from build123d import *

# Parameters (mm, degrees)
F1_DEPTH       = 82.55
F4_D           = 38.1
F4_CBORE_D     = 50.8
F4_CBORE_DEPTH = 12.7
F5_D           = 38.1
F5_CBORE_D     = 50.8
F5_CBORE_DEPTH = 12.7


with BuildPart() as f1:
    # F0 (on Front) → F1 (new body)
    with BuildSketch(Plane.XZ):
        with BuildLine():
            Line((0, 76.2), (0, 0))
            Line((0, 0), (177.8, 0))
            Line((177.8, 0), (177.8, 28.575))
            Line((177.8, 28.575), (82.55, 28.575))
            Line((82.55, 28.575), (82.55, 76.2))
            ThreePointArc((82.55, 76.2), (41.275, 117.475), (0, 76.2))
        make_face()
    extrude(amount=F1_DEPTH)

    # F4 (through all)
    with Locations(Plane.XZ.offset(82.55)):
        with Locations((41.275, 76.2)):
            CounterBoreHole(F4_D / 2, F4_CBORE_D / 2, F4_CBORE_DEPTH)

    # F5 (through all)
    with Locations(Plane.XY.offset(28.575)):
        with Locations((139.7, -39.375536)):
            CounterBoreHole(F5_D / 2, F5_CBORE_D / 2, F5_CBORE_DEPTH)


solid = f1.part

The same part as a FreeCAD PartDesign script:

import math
import FreeCAD as App
import Part
import Sketcher

V = App.Vector
Q = App.Units.Quantity

doc = App.newDocument("Part")
body = doc.addObject("PartDesign::Body", "Body")

sketch1 = body.newObject("Sketcher::SketchObject", "Sketch")
sketch1.AttachmentSupport = (doc.getObject("XZ_Plane"), [""])
sketch1.MapMode = "FlatFace"
sketch1.addGeometry([
    Part.LineSegment(V(0, 76, 0), V(0, 0, 0)),
    Part.LineSegment(V(0, 0, 0), V(178, 0, 0)),
    Part.LineSegment(V(178, 0, 0), V(178, 29, 0)),
    Part.LineSegment(V(178, 29, 0), V(83, 29, 0)),
    Part.LineSegment(V(83, 29, 0), V(83, 76, 0)),
    Part.ArcOfCircle(Part.Circle(V(41, 76, 0), V(0, 0, 1), 41), math.radians(0), math.radians(180)),
], False)
sketch1.addConstraint([
    Sketcher.Constraint("Coincident", 0, 2, 1, 1),
    Sketcher.Constraint("Coincident", 1, 2, 2, 1),
    Sketcher.Constraint("Coincident", 2, 2, 3, 1),
    Sketcher.Constraint("Coincident", 3, 2, 4, 1),
    Sketcher.Constraint("Tangent", 4, 2, 5, 1),
    Sketcher.Constraint("Tangent", 5, 2, 0, 1),
    Sketcher.Constraint("Vertical", 0),
    Sketcher.Constraint("Horizontal", 1),
    Sketcher.Constraint("Vertical", 2),
    Sketcher.Constraint("Horizontal", 3),
    Sketcher.Constraint("Vertical", 4),
    Sketcher.Constraint("Coincident", 0, 2, -1, 1),
    Sketcher.Constraint("DistanceX", 1, 1, 1, 2, Q("7 in")),
    Sketcher.Constraint("DistanceY", 0, 2, 0, 1, Q("3 in")),
    Sketcher.Constraint("Radius", 5, Q("1.625 in")),
    Sketcher.Constraint("DistanceY", 2, 1, 2, 2, Q("1.125 in")),
])
pad1 = body.newObject("PartDesign::Pad", "Pad")
pad1.Profile = sketch1
pad1.Length = Q("3.25 in")

sketch2 = body.newObject("Sketcher::SketchObject", "Sketch001")
sketch2.AttachmentSupport = (doc.getObject("XZ_Plane"), [""])
sketch2.MapMode = "FlatFace"
sketch2.AttachmentOffset = App.Placement(V(0, 0, 3.25 * 25.4), App.Rotation())
sketch2.addGeometry(Part.Circle(V(41, 76, 0), V(0, 0, 1), 19), False)
sketch2.addConstraint([
    Sketcher.Constraint("Diameter", 0, Q("1.5 in")),
    Sketcher.Constraint("DistanceY", -1, 1, 0, 3, Q("3 in")),
    Sketcher.Constraint("DistanceX", -1, 1, 0, 3, Q("1.625 in")),
])
doc.recompute()
hole = body.newObject("PartDesign::Hole", "Hole")
hole.Profile = sketch2
hole.ThreadType = "None"
hole.Diameter = Q("1.5 in")
hole.DepthType = "ThroughAll"
hole.HoleCutType = "Counterbore"
hole.HoleCutDiameter = Q("2 in")
hole.HoleCutDepth = Q("0.5 in")

sketch3 = body.newObject("Sketcher::SketchObject", "Sketch002")
sketch3.AttachmentSupport = (doc.getObject("XY_Plane"), [""])
sketch3.MapMode = "FlatFace"
sketch3.AttachmentOffset = App.Placement(V(0, 0, 1.125 * 25.4), App.Rotation())
sketch3.addGeometry(Part.Circle(V(140, -39, 0), V(0, 0, 1), 19), False)
sketch3.addConstraint([
    Sketcher.Constraint("Diameter", 0, Q("1.5 in")),
    Sketcher.Constraint("DistanceX", -1, 1, 0, 3, Q("5.5 in")),
    Sketcher.Constraint("DistanceY", 0, 3, -1, 1, 39.375536),
])
doc.recompute()
hole2 = body.newObject("PartDesign::Hole", "Hole001")
hole2.Profile = sketch3
hole2.ThreadType = "None"
hole2.Diameter = Q("1.5 in")
hole2.DepthType = "ThroughAll"
hole2.HoleCutType = "Counterbore"
hole2.HoleCutDiameter = Q("2 in")
hole2.HoleCutDepth = Q("0.5 in")

doc.recompute()
